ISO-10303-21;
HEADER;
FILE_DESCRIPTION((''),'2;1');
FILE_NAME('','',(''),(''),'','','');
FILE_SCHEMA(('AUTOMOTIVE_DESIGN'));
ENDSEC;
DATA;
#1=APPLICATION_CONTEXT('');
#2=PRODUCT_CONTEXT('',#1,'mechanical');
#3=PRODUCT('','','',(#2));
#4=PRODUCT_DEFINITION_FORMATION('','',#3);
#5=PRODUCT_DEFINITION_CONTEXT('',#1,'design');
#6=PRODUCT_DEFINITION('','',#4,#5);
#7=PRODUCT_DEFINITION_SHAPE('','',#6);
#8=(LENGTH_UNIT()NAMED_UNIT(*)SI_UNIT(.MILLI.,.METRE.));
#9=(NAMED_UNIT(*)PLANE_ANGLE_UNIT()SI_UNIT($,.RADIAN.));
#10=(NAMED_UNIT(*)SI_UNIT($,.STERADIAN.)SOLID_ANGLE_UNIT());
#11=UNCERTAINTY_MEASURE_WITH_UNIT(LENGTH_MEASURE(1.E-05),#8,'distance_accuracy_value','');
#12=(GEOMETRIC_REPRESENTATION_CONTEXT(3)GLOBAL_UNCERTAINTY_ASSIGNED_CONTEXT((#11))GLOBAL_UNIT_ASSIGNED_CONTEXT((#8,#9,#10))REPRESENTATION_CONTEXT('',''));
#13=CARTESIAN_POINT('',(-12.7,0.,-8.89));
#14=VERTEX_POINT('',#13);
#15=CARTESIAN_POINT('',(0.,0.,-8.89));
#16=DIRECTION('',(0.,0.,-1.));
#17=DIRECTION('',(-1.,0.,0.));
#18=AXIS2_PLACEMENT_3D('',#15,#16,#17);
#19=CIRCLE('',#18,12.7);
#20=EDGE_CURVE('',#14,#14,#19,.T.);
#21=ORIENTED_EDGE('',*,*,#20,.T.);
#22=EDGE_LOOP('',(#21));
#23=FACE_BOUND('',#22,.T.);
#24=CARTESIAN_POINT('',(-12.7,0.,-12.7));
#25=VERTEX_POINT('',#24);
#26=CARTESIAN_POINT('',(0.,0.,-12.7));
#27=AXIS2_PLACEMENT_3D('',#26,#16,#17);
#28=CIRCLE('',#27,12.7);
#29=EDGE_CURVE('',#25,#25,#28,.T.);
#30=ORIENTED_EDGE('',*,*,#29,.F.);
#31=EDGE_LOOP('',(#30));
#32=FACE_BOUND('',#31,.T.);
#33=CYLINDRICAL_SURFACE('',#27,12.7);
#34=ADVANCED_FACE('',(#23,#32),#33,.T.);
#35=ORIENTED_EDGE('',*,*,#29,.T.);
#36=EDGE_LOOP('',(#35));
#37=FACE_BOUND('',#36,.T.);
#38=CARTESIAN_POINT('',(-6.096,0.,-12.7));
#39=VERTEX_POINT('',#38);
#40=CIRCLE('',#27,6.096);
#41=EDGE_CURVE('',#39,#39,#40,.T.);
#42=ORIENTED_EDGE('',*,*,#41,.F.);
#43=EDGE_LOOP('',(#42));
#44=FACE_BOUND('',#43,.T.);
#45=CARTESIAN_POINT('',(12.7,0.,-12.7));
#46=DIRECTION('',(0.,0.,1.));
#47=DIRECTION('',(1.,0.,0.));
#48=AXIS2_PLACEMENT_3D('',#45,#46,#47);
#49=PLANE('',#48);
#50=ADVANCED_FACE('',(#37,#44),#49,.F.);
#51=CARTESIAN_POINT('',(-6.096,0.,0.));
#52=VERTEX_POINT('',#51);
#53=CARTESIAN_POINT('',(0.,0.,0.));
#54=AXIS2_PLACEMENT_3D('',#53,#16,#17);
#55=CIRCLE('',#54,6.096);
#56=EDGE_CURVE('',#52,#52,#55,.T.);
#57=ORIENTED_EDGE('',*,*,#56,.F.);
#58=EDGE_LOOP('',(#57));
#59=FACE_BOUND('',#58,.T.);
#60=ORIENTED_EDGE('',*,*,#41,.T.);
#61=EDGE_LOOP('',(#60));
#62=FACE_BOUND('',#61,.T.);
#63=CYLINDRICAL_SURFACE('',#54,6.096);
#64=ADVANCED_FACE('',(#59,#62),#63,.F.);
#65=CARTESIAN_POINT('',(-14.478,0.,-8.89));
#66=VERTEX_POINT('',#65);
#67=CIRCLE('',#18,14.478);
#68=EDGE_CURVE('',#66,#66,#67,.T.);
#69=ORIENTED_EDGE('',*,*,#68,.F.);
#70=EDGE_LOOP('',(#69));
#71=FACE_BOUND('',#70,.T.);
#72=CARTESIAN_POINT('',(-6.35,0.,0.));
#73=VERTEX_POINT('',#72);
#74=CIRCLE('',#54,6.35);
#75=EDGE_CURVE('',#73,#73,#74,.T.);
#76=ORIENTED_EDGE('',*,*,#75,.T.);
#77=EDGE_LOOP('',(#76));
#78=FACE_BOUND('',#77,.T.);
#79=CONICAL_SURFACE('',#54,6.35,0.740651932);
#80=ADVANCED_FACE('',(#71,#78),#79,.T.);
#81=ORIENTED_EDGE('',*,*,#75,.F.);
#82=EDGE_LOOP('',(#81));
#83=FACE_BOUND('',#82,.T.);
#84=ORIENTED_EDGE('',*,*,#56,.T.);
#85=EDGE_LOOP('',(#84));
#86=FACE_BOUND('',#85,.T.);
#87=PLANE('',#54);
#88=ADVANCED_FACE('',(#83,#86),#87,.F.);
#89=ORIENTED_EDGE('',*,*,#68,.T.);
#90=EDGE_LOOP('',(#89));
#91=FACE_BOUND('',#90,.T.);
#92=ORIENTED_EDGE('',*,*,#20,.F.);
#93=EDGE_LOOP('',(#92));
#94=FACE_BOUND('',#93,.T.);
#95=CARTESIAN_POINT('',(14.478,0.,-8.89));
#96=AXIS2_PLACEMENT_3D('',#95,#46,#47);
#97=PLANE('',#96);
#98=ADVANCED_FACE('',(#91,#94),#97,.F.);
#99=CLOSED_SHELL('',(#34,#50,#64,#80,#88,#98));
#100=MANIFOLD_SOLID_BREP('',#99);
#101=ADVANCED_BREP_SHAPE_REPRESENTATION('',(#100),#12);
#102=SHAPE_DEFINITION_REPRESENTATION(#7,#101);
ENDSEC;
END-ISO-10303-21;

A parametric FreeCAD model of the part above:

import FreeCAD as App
import Part
import Sketcher
Q = App.Units.Quantity

doc = App.newDocument("Part")
params = doc.addObject("Spreadsheet::Sheet", "Params")
for row, (alias, value) in enumerate([
    ("sketch1_width", "0.5 in"),
    ("sketch1_width2", "0.25 in"),
    ("sketch1_width3", "0.07 in"),
    ("sketch1_height", "0.15 in"),
    ("revolution_angle", "360 deg"),
    ("sketch2_diameter", "0.48 in"),
    ("pocket1_length", "0.5 in"),
], start=1):
    params.set(f"A{row}", alias)
    params.set(f"B{row}", "=" + value)
    params.setAlias(f"B{row}", alias)

body = doc.addObject("PartDesign::Body", "Body")

sketch1 = body.newObject("Sketcher::SketchObject", "Sketch")
sketch1.AttachmentSupport = (doc.getObject("XZ_Plane"), [""])
sketch1.MapMode = "FlatFace"
sketch1.addGeometry([
    Part.LineSegment(App.Vector(0, 0, 0), App.Vector(6.3, 0, 0)),
    Part.LineSegment(App.Vector(6.3, 0, 0), App.Vector(14.5, -8.9, 0)),
    Part.LineSegment(App.Vector(14.5, -8.9, 0), App.Vector(12.7, -8.9, 0)),
    Part.LineSegment(App.Vector(12.7, -8.9, 0), App.Vector(12.7, -12.7, 0)),
    Part.LineSegment(App.Vector(12.7, -12.7, 0), App.Vector(0, -12.7, 0)),
    Part.LineSegment(App.Vector(0, -12.7, 0), App.Vector(0, 0, 0)),
], False)
sketch1.addConstraint([
    Sketcher.Constraint("Coincident", 0, 2, 1, 1),
    Sketcher.Constraint("Coincident", 1, 2, 2, 1),
    Sketcher.Constraint("Coincident", 2, 2, 3, 1),
    Sketcher.Constraint("Coincident", 3, 2, 4, 1),
    Sketcher.Constraint("Coincident", 4, 2, 5, 1),
    Sketcher.Constraint("Coincident", 5, 2, 0, 1),
    Sketcher.Constraint("Horizontal", 0),
    Sketcher.Constraint("Horizontal", 2),
    Sketcher.Constraint("Vertical", 3),
    Sketcher.Constraint("Horizontal", 4),
    Sketcher.Constraint("Vertical", 5),
    Sketcher.Constraint("Coincident", 5, 2, -1, 1),
    Sketcher.Constraint("Equal", 4, 5),
    Sketcher.Constraint("DistanceX", 4, 2, 4, 1, Q("0.5 in")),
    Sketcher.Constraint("DistanceX", 0, 1, 0, 2, Q("0.25 in")),
    Sketcher.Constraint("DistanceX", 2, 2, 2, 1, Q("0.07 in")),
    Sketcher.Constraint("DistanceY", 3, 2, 3, 1, Q("0.15 in")),
])
sketch1.setExpression("Constraints[13]", "Params.sketch1_width")
sketch1.setExpression("Constraints[14]", "Params.sketch1_width2")
sketch1.setExpression("Constraints[15]", "Params.sketch1_width3")
sketch1.setExpression("Constraints[16]", "Params.sketch1_height")
revolution = body.newObject("PartDesign::Revolution", "Revolution")
revolution.Profile = sketch1
revolution.ReferenceAxis = (sketch1, ["V_Axis"])
revolution.setExpression("Angle", "Params.revolution_angle")

sketch2 = body.newObject("Sketcher::SketchObject", "Sketch001")
sketch2.AttachmentSupport = (doc.getObject("XY_Plane"), [""])
sketch2.MapMode = "FlatFace"
sketch2.AttachmentOffset = App.Placement(App.Vector(0, 0, -0.5 * 25.4), App.Rotation())
sketch2.addGeometry(Part.Circle(App.Vector(0, 0, 0), App.Vector(0, 0, 1), 6), False)
sketch2.addConstraint([
    Sketcher.Constraint("Coincident", 0, 3, -1, 1),
    Sketcher.Constraint("Diameter", 0, Q("0.48 in")),
])
sketch2.setExpression("Constraints[1]", "Params.sketch2_diameter")
pocket1 = body.newObject("PartDesign::Pocket", "Pocket")
pocket1.Profile = sketch2
pocket1.setExpression("Length", "Params.pocket1_length")
pocket1.Reversed = True

doc.recompute()
